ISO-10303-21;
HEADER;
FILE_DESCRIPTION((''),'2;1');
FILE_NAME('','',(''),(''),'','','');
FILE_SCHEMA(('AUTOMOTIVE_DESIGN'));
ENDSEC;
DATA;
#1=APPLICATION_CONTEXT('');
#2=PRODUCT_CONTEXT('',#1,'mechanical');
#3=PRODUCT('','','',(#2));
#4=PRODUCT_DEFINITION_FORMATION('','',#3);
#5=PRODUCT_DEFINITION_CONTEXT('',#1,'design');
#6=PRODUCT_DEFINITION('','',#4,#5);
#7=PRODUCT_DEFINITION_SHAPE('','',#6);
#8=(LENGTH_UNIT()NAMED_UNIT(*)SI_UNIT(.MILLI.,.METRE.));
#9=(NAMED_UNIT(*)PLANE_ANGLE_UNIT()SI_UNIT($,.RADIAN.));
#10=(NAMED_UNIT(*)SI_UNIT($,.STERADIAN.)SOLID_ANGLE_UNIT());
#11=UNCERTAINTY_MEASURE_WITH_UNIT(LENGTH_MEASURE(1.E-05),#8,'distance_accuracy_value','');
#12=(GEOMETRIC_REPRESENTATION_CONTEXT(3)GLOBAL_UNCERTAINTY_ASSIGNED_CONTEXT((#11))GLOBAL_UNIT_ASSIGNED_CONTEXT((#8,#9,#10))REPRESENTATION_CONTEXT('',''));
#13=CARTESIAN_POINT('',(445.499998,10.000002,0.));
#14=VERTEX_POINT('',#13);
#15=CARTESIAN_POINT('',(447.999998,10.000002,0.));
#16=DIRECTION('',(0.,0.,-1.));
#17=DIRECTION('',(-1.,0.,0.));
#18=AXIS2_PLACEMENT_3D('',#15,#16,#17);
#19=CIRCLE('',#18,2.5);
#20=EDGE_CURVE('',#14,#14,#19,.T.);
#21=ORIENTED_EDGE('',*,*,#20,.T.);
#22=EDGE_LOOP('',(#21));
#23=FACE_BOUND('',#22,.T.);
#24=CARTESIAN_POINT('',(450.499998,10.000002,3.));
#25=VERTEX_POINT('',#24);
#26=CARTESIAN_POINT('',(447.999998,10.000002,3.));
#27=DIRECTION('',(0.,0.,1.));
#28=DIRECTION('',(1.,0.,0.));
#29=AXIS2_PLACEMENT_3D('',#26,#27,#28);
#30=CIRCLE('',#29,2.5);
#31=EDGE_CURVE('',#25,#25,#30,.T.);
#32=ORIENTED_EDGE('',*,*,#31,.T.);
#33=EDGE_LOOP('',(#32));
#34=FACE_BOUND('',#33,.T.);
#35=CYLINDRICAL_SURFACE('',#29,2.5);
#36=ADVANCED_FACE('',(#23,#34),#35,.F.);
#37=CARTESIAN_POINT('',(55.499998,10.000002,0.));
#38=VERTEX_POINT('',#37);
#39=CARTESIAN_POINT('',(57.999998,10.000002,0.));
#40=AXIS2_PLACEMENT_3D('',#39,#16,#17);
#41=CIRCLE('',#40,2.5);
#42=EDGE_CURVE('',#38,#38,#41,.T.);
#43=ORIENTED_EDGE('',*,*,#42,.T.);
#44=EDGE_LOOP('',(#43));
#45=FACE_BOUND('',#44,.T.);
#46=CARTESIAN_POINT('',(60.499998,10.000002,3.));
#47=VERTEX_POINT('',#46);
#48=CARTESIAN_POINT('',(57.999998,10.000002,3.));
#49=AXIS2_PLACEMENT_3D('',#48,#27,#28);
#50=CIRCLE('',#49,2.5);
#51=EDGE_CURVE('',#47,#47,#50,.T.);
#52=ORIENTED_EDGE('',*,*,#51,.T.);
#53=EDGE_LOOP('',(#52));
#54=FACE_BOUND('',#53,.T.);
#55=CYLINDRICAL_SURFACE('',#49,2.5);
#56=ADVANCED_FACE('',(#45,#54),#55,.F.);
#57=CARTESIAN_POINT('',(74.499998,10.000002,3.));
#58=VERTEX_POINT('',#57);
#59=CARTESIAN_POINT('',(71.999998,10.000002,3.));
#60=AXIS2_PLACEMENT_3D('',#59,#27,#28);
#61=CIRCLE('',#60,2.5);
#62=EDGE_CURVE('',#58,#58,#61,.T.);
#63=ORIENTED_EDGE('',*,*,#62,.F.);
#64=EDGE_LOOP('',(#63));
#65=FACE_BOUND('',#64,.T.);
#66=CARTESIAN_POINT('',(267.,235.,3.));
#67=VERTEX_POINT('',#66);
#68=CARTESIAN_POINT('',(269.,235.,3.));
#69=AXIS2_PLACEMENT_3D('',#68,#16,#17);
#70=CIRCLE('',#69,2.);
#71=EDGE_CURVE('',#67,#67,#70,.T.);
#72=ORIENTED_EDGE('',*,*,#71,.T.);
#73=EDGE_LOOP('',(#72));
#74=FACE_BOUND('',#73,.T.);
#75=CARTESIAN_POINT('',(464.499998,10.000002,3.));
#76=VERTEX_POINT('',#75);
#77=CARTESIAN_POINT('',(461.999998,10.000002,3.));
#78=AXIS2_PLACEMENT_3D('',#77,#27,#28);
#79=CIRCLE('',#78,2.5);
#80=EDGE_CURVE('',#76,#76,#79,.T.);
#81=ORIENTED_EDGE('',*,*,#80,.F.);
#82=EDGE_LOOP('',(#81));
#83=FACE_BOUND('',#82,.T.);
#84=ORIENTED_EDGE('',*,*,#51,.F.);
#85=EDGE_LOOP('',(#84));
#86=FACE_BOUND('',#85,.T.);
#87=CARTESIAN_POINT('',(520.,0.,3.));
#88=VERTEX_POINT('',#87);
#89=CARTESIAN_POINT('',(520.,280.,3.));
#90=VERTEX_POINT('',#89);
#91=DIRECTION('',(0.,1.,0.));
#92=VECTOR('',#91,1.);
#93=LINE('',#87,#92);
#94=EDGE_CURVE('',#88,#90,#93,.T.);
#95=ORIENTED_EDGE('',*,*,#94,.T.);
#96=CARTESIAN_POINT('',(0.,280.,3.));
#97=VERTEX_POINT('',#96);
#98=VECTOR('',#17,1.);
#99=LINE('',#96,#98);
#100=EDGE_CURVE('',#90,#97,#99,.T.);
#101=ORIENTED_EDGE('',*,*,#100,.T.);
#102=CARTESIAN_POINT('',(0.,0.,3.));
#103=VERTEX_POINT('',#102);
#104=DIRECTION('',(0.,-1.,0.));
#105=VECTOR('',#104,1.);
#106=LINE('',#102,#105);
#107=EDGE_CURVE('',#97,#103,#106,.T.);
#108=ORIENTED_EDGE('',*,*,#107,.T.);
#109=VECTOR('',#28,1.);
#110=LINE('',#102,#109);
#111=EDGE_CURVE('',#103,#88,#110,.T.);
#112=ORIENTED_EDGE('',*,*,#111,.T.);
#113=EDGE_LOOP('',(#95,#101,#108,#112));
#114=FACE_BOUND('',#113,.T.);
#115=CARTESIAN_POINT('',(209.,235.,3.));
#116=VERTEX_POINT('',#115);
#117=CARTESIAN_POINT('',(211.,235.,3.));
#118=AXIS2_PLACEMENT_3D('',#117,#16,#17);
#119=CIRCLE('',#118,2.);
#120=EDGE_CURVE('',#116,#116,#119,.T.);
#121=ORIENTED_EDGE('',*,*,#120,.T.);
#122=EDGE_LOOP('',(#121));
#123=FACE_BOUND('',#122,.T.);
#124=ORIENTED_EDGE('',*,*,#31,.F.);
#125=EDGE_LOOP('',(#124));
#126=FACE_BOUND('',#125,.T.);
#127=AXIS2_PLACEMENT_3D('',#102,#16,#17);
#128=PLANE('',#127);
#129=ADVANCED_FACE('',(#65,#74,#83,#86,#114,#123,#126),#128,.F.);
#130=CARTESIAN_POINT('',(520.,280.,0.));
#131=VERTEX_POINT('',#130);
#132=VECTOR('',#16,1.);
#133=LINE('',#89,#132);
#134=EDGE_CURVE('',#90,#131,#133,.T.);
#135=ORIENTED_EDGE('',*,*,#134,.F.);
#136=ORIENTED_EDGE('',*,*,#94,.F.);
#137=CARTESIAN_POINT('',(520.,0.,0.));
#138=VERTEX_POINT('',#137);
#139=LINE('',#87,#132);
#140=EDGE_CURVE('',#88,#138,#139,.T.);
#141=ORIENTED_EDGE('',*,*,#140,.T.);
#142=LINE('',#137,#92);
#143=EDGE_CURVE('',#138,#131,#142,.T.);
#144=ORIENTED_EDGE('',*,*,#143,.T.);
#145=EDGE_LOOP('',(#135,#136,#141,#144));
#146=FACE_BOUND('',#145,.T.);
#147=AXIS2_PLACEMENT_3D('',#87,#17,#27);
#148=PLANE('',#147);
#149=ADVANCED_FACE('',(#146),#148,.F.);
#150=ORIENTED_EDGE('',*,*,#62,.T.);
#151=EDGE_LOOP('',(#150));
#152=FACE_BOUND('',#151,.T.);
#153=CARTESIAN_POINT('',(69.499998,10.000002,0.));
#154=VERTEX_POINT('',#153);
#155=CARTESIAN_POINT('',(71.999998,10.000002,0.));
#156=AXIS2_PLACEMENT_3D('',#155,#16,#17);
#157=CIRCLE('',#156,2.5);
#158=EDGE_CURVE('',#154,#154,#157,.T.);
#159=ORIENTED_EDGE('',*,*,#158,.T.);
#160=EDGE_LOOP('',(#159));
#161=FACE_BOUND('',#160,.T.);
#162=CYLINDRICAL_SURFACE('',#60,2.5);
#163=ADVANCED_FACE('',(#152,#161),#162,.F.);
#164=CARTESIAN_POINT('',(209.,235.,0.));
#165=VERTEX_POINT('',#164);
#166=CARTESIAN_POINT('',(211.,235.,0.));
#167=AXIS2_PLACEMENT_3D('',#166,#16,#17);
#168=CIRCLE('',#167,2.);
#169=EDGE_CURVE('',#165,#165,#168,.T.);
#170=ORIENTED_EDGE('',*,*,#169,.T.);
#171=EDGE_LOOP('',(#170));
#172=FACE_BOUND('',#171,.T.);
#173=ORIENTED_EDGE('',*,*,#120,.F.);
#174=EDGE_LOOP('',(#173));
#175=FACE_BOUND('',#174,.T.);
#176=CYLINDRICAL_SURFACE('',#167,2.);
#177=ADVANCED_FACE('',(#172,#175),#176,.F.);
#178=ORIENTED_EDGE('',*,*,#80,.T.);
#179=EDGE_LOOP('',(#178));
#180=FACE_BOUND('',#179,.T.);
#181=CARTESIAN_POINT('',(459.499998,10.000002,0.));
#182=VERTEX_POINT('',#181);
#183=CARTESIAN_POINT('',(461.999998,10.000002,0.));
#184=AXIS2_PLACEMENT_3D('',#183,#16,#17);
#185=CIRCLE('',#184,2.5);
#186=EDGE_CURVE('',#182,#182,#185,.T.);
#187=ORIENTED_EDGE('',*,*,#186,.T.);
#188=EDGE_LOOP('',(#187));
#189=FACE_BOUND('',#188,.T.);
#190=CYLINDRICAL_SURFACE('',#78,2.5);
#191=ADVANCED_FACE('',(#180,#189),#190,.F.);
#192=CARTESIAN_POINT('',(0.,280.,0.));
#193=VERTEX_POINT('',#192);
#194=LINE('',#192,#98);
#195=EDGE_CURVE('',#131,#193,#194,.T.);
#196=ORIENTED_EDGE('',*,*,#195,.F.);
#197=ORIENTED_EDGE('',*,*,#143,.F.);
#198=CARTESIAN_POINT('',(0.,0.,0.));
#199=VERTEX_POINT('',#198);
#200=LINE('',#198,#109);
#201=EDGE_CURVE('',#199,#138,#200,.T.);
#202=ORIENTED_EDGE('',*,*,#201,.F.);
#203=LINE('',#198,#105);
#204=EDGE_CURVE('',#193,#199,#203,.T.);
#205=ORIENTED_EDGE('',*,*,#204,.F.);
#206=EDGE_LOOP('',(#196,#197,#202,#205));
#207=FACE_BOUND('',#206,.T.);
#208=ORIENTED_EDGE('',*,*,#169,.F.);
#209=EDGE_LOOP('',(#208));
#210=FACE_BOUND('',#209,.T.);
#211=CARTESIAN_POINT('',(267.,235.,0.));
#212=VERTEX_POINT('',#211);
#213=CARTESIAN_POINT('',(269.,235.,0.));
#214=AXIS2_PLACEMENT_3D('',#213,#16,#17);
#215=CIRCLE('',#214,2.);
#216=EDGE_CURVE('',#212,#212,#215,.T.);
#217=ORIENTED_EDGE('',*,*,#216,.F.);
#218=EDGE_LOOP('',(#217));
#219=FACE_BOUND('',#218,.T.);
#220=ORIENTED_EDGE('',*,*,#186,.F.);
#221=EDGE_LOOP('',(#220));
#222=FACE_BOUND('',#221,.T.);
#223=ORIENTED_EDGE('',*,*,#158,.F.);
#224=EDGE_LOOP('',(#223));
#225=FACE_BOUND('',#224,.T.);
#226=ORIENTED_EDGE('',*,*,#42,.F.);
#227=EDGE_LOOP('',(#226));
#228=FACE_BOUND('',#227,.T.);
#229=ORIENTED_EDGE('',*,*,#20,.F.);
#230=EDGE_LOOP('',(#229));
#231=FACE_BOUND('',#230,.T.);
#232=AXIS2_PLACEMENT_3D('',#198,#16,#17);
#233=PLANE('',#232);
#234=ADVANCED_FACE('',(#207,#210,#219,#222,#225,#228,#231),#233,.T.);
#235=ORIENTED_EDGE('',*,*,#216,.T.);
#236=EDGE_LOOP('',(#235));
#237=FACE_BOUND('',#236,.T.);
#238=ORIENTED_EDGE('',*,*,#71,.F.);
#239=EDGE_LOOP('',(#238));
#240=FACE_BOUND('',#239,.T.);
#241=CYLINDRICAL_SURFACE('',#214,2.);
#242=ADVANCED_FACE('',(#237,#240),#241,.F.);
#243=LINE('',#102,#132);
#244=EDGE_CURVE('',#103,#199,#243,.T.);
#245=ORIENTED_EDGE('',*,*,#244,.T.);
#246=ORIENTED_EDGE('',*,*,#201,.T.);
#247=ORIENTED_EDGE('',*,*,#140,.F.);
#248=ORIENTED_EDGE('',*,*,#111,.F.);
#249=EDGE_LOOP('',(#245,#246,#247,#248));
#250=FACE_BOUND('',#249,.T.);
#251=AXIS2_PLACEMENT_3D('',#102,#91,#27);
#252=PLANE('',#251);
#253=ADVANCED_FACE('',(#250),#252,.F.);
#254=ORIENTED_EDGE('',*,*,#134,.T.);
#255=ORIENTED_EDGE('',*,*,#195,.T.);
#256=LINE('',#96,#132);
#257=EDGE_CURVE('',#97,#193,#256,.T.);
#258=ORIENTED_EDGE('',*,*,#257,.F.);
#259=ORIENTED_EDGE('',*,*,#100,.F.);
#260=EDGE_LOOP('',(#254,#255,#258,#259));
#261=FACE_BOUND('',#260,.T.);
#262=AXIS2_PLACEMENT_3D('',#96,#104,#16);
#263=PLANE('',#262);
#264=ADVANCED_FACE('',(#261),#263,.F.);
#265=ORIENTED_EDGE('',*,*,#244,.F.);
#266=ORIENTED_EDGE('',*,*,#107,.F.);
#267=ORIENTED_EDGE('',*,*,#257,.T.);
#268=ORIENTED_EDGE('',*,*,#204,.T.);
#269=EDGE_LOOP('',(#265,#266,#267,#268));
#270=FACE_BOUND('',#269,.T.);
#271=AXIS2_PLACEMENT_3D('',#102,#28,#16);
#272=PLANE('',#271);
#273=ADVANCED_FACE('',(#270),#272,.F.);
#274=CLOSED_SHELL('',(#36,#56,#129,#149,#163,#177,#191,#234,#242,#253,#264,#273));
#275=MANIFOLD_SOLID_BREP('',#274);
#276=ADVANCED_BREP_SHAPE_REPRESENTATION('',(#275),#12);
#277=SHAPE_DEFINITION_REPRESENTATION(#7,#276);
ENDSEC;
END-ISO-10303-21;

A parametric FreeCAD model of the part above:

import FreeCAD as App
import Part
import Sketcher
from FreeCAD import Vector


def add_polygon(sketch, points):
    """Adds a closed chain of lines whose ends are joined by coincident constraints."""
    first, n = sketch.GeometryCount, len(points)
    for a, b in zip(points, points[1:] + points[:1]):
        sketch.addGeometry(Part.LineSegment(App.Vector(*a, 0), App.Vector(*b, 0)), False)
    for i in range(n):
        sketch.addConstraint(Sketcher.Constraint("Coincident", first + i, 2, first + (i + 1) % n, 1))

doc = App.newDocument("Part")
body = doc.addObject("PartDesign::Body", "Body")

sketch1 = doc.addObject("Sketcher::SketchObject", "Sketch")
body.addObject(sketch1)
sketch1.AttachmentSupport = (doc.XY_Plane, [""])
sketch1.MapMode = "FlatFace"
add_polygon(sketch1, [(0, 280), (0, 0), (520, 0), (520, 280)])
sketch1.addConstraint([
    Sketcher.Constraint("Vertical", 0),
    Sketcher.Constraint("Horizontal", 1),
    Sketcher.Constraint("Vertical", 2),
    Sketcher.Constraint("Horizontal", 3),
    Sketcher.Constraint("Coincident", 0, 2, -1, 1),
    Sketcher.Constraint("DistanceX", 1, 1, 1, 2, 520.0),
    Sketcher.Constraint("DistanceY", 0, 2, 0, 1, 280.0),
])
pad1 = doc.addObject("PartDesign::Pad", "Pad")
body.addObject(pad1)
pad1.Profile = sketch1
pad1.Length = 3

sketch2 = doc.addObject("Sketcher::SketchObject", "Sketch001")
body.addObject(sketch2)
sketch2.AttachmentSupport = (doc.XY_Plane, [""])
sketch2.MapMode = "FlatFace"
sketch2.AttachmentOffset = App.Placement(Vector(0, 0, 3), App.Rotation())
sketch2.addGeometry([
    Part.Circle(Vector(461.999998, 10.000002, 0), Vector(0, 0, 1), 2.5),
    Part.Circle(Vector(447.999998, 10.000002, 0), Vector(0, 0, 1), 2.5),
    Part.Circle(Vector(71.999998, 10.000002, 0), Vector(0, 0, 1), 2.5),
    Part.Circle(Vector(57.999998, 10.000002, 0), Vector(0, 0, 1), 2.5),
], False)
sketch2.addConstraint([
    Sketcher.Constraint("Equal", 0, 1),
    Sketcher.Constraint("Equal", 1, 2),
    Sketcher.Constraint("Equal", 2, 3),
    Sketcher.Constraint("Horizontal", 0, 3, 1, 3),
    Sketcher.Constraint("Horizontal", 1, 3, 2, 3),
    Sketcher.Constraint("Horizontal", 2, 3, 3, 3),
    Sketcher.Constraint("Diameter", 0, 5.0),
    Sketcher.Constraint("DistanceY", -1, 1, 0, 3, 10.000002),
    Sketcher.Constraint("DistanceX", 1, 3, 0, 3, 14.0),
    Sketcher.Constraint("DistanceX", 2, 3, 1, 3, 376.0),
    Sketcher.Constraint("DistanceX", 3, 3, 2, 3, 14.0),
    Sketcher.Constraint("DistanceX", -1, 1, 0, 3, 461.999998),
])
doc.recompute()
hole = doc.addObject("PartDesign::Hole", "Hole")
body.addObject(hole)
hole.Profile = sketch2
hole.ThreadType = "None"
hole.Diameter = 5
hole.DepthType = "ThroughAll"

sketch3 = doc.addObject("Sketcher::SketchObject", "Sketch002")
body.addObject(sketch3)
sketch3.AttachmentSupport = (doc.XY_Plane, [""])
sketch3.MapMode = "FlatFace"
sketch3.addGeometry([
    Part.Circle(Vector(269, 235, 0), Vector(0, 0, 1), 2),
    Part.Circle(Vector(211, 235, 0), Vector(0, 0, 1), 2),
], False)
sketch3.addConstraint([
    Sketcher.Constraint("Equal", 0, 1),
    Sketcher.Constraint("Horizontal", 0, 3, 1, 3),
    Sketcher.Constraint("Diameter", 0, 4.0),
    Sketcher.Constraint("DistanceX", -1, 1, 0, 3, 269.0),
    Sketcher.Constraint("DistanceY", -1, 1, 0, 3, 235.0),
    Sketcher.Constraint("DistanceX", -1, 1, 1, 3, 211.0),
])
doc.recompute()
hole2 = doc.addObject("PartDesign::Hole", "Hole001")
body.addObject(hole2)
hole2.Profile = sketch3
hole2.ThreadType = "None"
hole2.Diameter = 4
hole2.DepthType = "ThroughAll"
hole2.Reversed = True

doc.recompute()
